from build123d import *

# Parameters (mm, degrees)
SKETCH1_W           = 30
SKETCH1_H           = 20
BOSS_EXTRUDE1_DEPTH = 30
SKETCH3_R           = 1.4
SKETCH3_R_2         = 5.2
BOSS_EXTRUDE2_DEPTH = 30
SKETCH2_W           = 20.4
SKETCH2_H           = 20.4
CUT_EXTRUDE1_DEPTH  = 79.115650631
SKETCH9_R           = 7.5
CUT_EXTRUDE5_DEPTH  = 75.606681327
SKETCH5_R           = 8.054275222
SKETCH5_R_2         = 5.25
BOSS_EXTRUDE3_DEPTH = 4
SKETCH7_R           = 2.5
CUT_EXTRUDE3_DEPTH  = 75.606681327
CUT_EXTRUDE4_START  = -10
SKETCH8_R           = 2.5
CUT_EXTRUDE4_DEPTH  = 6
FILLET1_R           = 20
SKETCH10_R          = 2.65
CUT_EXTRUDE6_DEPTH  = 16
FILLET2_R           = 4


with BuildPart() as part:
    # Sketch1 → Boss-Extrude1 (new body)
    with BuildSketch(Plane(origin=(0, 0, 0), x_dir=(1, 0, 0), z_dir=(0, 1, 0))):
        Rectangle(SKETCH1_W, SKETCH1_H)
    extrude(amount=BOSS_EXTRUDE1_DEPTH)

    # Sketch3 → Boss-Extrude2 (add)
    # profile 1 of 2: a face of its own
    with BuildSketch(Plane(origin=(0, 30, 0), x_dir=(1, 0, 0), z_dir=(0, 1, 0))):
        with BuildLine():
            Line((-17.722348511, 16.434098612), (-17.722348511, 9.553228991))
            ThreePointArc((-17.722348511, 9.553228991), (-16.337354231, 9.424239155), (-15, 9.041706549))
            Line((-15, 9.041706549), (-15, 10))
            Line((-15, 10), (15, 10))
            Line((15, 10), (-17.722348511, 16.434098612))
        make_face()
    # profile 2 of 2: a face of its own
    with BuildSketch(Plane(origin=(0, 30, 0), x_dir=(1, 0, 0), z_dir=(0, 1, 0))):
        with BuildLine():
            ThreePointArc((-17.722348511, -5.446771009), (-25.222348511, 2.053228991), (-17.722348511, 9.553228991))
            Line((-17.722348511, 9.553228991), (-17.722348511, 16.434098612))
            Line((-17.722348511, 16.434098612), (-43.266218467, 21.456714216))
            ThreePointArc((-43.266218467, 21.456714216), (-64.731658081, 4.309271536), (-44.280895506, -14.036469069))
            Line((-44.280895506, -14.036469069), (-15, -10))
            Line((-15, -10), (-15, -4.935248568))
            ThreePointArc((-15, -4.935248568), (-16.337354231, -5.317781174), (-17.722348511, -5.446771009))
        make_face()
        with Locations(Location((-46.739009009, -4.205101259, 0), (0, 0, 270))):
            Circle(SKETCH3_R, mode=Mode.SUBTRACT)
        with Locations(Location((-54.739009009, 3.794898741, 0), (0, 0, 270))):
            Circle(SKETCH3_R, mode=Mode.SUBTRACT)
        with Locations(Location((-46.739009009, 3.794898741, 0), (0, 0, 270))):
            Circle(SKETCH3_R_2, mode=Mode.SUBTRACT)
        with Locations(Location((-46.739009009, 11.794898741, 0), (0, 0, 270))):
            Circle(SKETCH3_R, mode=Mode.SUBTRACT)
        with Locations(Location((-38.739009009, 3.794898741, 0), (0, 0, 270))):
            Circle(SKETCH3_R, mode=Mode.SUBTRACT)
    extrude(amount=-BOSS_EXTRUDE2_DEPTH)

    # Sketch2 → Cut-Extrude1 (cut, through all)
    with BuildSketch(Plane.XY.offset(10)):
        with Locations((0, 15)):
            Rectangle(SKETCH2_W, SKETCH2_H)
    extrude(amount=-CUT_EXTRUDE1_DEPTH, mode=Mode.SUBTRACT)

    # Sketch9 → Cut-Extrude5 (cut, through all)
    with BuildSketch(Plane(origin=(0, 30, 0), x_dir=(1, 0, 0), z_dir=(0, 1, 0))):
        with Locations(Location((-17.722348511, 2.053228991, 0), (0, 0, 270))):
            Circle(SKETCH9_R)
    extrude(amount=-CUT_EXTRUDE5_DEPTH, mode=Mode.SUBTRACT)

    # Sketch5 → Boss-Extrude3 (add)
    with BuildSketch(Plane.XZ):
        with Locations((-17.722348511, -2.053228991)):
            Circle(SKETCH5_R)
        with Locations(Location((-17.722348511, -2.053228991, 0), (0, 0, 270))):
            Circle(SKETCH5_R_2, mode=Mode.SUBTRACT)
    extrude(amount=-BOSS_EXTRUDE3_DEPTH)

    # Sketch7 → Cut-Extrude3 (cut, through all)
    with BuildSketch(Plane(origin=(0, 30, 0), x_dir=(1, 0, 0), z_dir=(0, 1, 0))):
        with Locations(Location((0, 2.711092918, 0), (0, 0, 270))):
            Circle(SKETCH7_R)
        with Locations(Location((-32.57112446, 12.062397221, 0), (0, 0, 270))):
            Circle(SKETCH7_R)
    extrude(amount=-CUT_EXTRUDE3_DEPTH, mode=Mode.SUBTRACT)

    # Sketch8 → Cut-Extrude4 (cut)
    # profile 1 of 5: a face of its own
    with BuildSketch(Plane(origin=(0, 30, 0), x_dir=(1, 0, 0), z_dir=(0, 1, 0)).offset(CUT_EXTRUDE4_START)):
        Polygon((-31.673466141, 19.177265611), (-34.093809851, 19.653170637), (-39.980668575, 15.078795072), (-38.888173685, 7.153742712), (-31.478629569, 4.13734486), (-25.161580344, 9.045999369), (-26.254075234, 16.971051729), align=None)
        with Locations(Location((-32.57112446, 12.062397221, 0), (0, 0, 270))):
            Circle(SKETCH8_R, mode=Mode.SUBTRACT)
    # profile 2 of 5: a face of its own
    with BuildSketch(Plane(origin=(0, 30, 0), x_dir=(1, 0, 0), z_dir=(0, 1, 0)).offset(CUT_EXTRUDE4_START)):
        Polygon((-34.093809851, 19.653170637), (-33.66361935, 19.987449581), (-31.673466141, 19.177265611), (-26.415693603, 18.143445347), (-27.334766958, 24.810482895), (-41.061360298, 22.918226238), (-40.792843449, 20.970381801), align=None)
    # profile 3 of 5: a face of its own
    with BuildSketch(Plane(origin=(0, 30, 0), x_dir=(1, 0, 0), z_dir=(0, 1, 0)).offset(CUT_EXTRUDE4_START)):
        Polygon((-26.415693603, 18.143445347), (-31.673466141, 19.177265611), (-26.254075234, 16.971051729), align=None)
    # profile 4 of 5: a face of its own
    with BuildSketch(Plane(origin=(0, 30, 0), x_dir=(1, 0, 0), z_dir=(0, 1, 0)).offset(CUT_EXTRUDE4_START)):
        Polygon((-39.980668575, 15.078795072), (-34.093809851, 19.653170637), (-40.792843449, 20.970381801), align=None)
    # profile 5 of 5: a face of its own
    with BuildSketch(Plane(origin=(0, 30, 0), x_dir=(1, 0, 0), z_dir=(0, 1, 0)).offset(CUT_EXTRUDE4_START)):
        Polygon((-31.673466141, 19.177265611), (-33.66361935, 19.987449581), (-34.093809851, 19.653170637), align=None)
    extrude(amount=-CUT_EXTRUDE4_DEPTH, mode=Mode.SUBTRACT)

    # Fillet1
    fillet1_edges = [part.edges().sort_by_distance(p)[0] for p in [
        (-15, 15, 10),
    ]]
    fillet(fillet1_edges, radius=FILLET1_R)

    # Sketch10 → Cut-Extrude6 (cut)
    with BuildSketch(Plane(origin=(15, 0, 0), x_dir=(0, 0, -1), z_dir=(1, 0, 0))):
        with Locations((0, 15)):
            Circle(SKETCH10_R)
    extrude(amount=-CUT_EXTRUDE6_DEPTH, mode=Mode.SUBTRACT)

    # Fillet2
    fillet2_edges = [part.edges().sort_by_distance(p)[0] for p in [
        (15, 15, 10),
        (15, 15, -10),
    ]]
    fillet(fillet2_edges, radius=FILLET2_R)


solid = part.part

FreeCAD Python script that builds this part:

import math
import FreeCAD as App
import Part
import Sketcher
Q = App.Units.Quantity


def edges_at(feature, points):
    """Names of the edges that pass closest to the given points."""
    edges = feature.Shape.Edges
    near = lambda p: min(range(len(edges)), key=lambda i: edges[i].distToShape(Part.Vertex(*p))[0])
    return sorted({f"Edge{near(p) + 1}" for p in points})


def add_polygon(sketch, points):
    """Adds a closed chain of lines whose ends are joined by coincident constraints."""
    first, n = sketch.GeometryCount, len(points)
    for a, b in zip(points, points[1:] + points[:1]):
        sketch.addGeometry(Part.LineSegment(App.Vector(*a, 0), App.Vector(*b, 0)), False)
    for i in range(n):
        sketch.addConstraint(Sketcher.Constraint("Coincident", first + i, 2, first + (i + 1) % n, 1))

doc = App.newDocument("Part")
params = doc.addObject("Spreadsheet::Sheet", "Params")
for row, (alias, value) in enumerate([
    ("sketch1_width", "30 mm"),
    ("sketch1_height", "20 mm"),
    ("pad1_length", "30 mm"),
    ("sketch2_radius", "18 mm"),
    ("sketch2_diameter", "2.8 mm"),
    ("sketch2_diameter2", "10.4 mm"),
    ("sketch2_radius2", "7.5 mm"),
    ("sketch2_width", "30 mm"),
    ("pad2_length", "30 mm"),
    ("sketch3_width", "20.4 mm"),
    ("sketch4_diameter", "15 mm"),
    ("sketch5_diameter", "10.5 mm"),
    ("pad3_length", "4 mm"),
    ("sketch6_diameter", "5 mm"),
    ("sketch7_diameter", "5 mm"),
    ("sketch7_length", "8 mm"),
    ("pocket4_length", "6 mm"),
    ("fillet_radius", "20 mm"),
    ("sketch8_diameter", "5.3 mm"),
    ("pocket5_length", "16 mm"),
    ("fillet2_radius", "4 mm"),
], start=1):
    params.set(f"A{row}", alias)
    params.set(f"B{row}", "=" + value)
    params.setAlias(f"B{row}", alias)

body = doc.addObject("PartDesign::Body", "Body")

# Sketch on XZ plane
sketch1 = body.newObject("Sketcher::SketchObject", "Sketch")
sketch1.AttachmentSupport = (doc.getObject("XZ_Plane"), [""])
sketch1.MapMode = "FlatFace"
add_polygon(sketch1, [(-15, -10), (-15, 10), (15, 10), (15, -10)])  # lines 0-3
sketch1.addConstraint(Sketcher.Constraint("Vertical", 0))
sketch1.addConstraint(Sketcher.Constraint("Horizontal", 1))
sketch1.addConstraint(Sketcher.Constraint("Vertical", 2))
sketch1.addConstraint(Sketcher.Constraint("Horizontal", 3))
sketch1.addConstraint(Sketcher.Constraint("Symmetric", 0, 2, 2, 2, -1, 1))
sketch1.addConstraint(Sketcher.Constraint("DistanceX", 1, 1, 1, 2, Q("30 mm")))
sketch1.addConstraint(Sketcher.Constraint("DistanceY", 0, 1, 0, 2, Q("20 mm")))
sketch1.setExpression("Constraints[9]", "Params.sketch1_width")
sketch1.setExpression("Constraints[10]", "Params.sketch1_height")
pad1 = body.newObject("PartDesign::Pad", "Pad")
pad1.Profile = sketch1
pad1.setExpression("Length", "Params.pad1_length")
pad1.Reversed = True

# Sketch on XZ plane
sketch2 = body.newObject("Sketcher::SketchObject", "Sketch001")
sketch2.AttachmentSupport = (doc.getObject("XZ_Plane"), [""])
sketch2.MapMode = "FlatFace"
sketch2.AttachmentOffset = App.Placement(App.Vector(0, 0, -30), App.Rotation())
sketch2.addGeometry(Part.ArcOfCircle(Part.Circle(App.Vector(-17.722349, -2.053229, 0), App.Vector(0, 0, 1), 7.5), math.radians(-90), math.radians(-68.716691)), False)
sketch2.addGeometry(Part.LineSegment(App.Vector(-15, -9.041707, 0), App.Vector(-15, -10, 0)), False)
sketch2.addGeometry(Part.LineSegment(App.Vector(-15, -10, 0), App.Vector(15, -10, 0)), False)
sketch2.addGeometry(Part.LineSegment(App.Vector(15, -10, 0), App.Vector(-17.722349, -16.434099, 0)), False)
sketch2.addGeometry(Part.LineSegment(App.Vector(-17.722349, -16.434099, 0), App.Vector(-43.266218, -21.456714, 0)), False)
sketch2.addGeometry(Part.ArcOfCircle(Part.Circle(App.Vector(-46.739009, -3.794899, 0), App.Vector(0, 0, 1), 18), math.radians(82.151056), math.radians(281.123989)), False)
sketch2.addGeometry(Part.LineSegment(App.Vector(-44.280896, 14.036469, 0), App.Vector(-15, 10, 0)), False)
sketch2.addGeometry(Part.LineSegment(App.Vector(-15, 10, 0), App.Vector(-15, 4.935249, 0)), False)
sketch2.addGeometry(Part.ArcOfCircle(Part.Circle(App.Vector(-17.722349, -2.053229, 0), App.Vector(0, 0, 1), 7.5), math.radians(68.716691), math.radians(90)), False)
sketch2.addGeometry(Part.ArcOfCircle(Part.Circle(App.Vector(-17.722349, -2.053229, 0), App.Vector(0, 0, 1), 7.5), math.radians(90), math.radians(270)), False)
sketch2.addGeometry(Part.Circle(App.Vector(-46.739009, -11.794899, 0), App.Vector(0, 0, 1), 1.4), False)
sketch2.addGeometry(Part.Circle(App.Vector(-54.739009, -3.794899, 0), App.Vector(0, 0, 1), 1.4), False)
sketch2.addGeometry(Part.Circle(App.Vector(-46.739009, 4.205101, 0), App.Vector(0, 0, 1), 1.4), False)
sketch2.addGeometry(Part.Circle(App.Vector(-46.739009, -3.794899, 0), App.Vector(0, 0, 1), 5.2), False)
sketch2.addGeometry(Part.Circle(App.Vector(-38.739009, -3.794899, 0), App.Vector(0, 0, 1), 1.4), False)
sketch2.addConstraint(Sketcher.Constraint("Coincident", 0, 2, 1, 1))
sketch2.addConstraint(Sketcher.Constraint("Coincident", 1, 2, 2, 1))
sketch2.addConstraint(Sketcher.Constraint("Coincident", 2, 2, 3, 1))
sketch2.addConstraint(Sketcher.Constraint("Coincident", 3, 2, 4, 1))
sketch2.addConstraint(Sketcher.Constraint("Tangent", 4, 2, 5, 2))
sketch2.addConstraint(Sketcher.Constraint("Tangent", 5, 1, 6, 1))
sketch2.addConstraint(Sketcher.Constraint("Coincident", 6, 2, 7, 1))
sketch2.addConstraint(Sketcher.Constraint("Coincident", 7, 2, 8, 1))
sketch2.addConstraint(Sketcher.Constraint("Tangent", 8, 2, 9, 1))
sketch2.addConstraint(Sketcher.Constraint("Tangent", 9, 2, 0, 1))
sketch2.addConstraint(Sketcher.Constraint("Vertical", 1))
sketch2.addConstraint(Sketcher.Constraint("Horizontal", 2))
sketch2.addConstraint(Sketcher.Constraint("Vertical", 7))
sketch2.addConstraint(Sketcher.Constraint("Coincident", 13, 3, 5, 3))
sketch2.addConstraint(Sketcher.Constraint("Equal", 0, 8))
sketch2.addConstraint(Sketcher.Constraint("Equal", 8, 9))
sketch2.addConstraint(Sketcher.Constraint("Equal", 10, 11))
sketch2.addConstraint(Sketcher.Constraint("Equal", 11, 12))
sketch2.addConstraint(Sketcher.Constraint("Equal", 12, 14))
sketch2.addConstraint(Sketcher.Constraint("Symmetric", 2, 2, 6, 2, -1, 1))
sketch2.addConstraint(Sketcher.Constraint("Parallel", 3, 4))
sketch2.addConstraint(Sketcher.Constraint("Horizontal", 5, 3, 11, 3))
sketch2.addConstraint(Sketcher.Constraint("Horizontal", 13, 3, 14, 3))
sketch2.addConstraint(Sketcher.Constraint("Vertical", 5, 3, 10, 3))
sketch2.addConstraint(Sketcher.Constraint("Vertical", 10, 3, 12, 3))
sketch2.addConstraint(Sketcher.Constraint("Vertical", 9, 3, 3, 2))
sketch2.addConstraint(Sketcher.Constraint("Vertical", 1, 2, 6, 2))
sketch2.addConstraint(Sketcher.Constraint("Vertical", 3, 2, 8, 2))
sketch2.addConstraint(Sketcher.Constraint("Vertical", 8, 2, 9, 2))
sketch2.addConstraint(Sketcher.Constraint("Radius", 5, Q("18 mm")))
sketch2.addConstraint(Sketcher.Constraint("Diameter", 10, Q("2.8 mm")))
sketch2.addConstraint(Sketcher.Constraint("Diameter", 13, Q("10.4 mm")))
sketch2.addConstraint(Sketcher.Constraint("Radius", 0, Q("7.5 mm")))
sketch2.addConstraint(Sketcher.Constraint("DistanceX", 2, 1, 2, 2, Q("30 mm")))
sketch2.addConstraint(Sketcher.Constraint("DistanceY", 1, 2, -1, 1, Q("10 mm")))
sketch2.addConstraint(Sketcher.Constraint("DistanceY", 10, 3, 5, 3, Q("8 mm")))
sketch2.addConstraint(Sketcher.Constraint("DistanceX", 11, 3, 5, 3, Q("8 mm")))
sketch2.addConstraint(Sketcher.Constraint("DistanceY", 5, 3, 12, 3, Q("8 mm")))
sketch2.addConstraint(Sketcher.Constraint("DistanceX", 5, 3, 14, 3, Q("8 mm")))
sketch2.addConstraint(Sketcher.Constraint("DistanceY", 7, 2, 7, 1, Q("5.064751 mm")))
sketch2.addConstraint(Sketcher.Constraint("DistanceY", 5, 3, -1, 1, Q("3.794899 mm")))
sketch2.addConstraint(Sketcher.Constraint("DistanceY", 3, 2, -1, 1, Q("16.434099 mm")))
sketch2.addConstraint(Sketcher.Constraint("Distance", 3, Q("33.348909 mm")))
sketch2.setExpression("Constraints[29]", "Params.sketch2_radius")
sketch2.setExpression("Constraints[30]", "Params.sketch2_diameter")
sketch2.setExpression("Constraints[31]", "Params.sketch2_diameter2")
sketch2.setExpression("Constraints[32]", "Params.sketch2_radius2")
sketch2.setExpression("Constraints[33]", "Params.sketch2_width")
pad2 = body.newObject("PartDesign::Pad", "Pad001")
pad2.Profile = sketch2
pad2.setExpression("Length", "Params.pad2_length")

# Sketch on XY plane
sketch3 = body.newObject("Sketcher::SketchObject", "Sketch002")
sketch3.AttachmentSupport = (doc.getObject("XY_Plane"), [""])
sketch3.MapMode = "FlatFace"
sketch3.AttachmentOffset = App.Placement(App.Vector(0, 0, 10), App.Rotation())
add_polygon(sketch3, [(-10.2, 25.2), (-10.2, 4.8), (10.2, 4.8), (10.2, 25.2)])  # lines 0-3
sketch3.addConstraint(Sketcher.Constraint("Vertical", 0))
sketch3.addConstraint(Sketcher.Constraint("Horizontal", 1))
sketch3.addConstraint(Sketcher.Constraint("Vertical", 2))
sketch3.addConstraint(Sketcher.Constraint("Horizontal", 3))
sketch3.addConstraint(Sketcher.Constraint("Equal", 3, 0))
sketch3.addConstraint(Sketcher.Constraint("DistanceX", 1, 1, 1, 2, Q("20.4 mm")))
sketch3.addConstraint(Sketcher.Constraint("DistanceX", 0, 2, -1, 1, Q("10.2 mm")))
sketch3.addConstraint(Sketcher.Constraint("DistanceY", -1, 1, 0, 2, Q("4.8 mm")))
sketch3.setExpression("Constraints[9]", "Params.sketch3_width")
pocket1 = body.newObject("PartDesign::Pocket", "Pocket")
pocket1.Profile = sketch3
pocket1.Type = "ThroughAll"

# Sketch on XZ plane
sketch4 = body.newObject("Sketcher::SketchObject", "Sketch003")
sketch4.AttachmentSupport = (doc.getObject("XZ_Plane"), [""])
sketch4.MapMode = "FlatFace"
sketch4.AttachmentOffset = App.Placement(App.Vector(0, 0, -30), App.Rotation())
sketch4.addGeometry(Part.Circle(App.Vector(-17.722349, -2.053229, 0), App.Vector(0, 0, 1), 7.5), False)
sketch4.addConstraint(Sketcher.Constraint("Diameter", 0, Q("15 mm")))
sketch4.addConstraint(Sketcher.Constraint("DistanceX", 0, 3, -1, 1, Q("17.722349 mm")))
sketch4.addConstraint(Sketcher.Constraint("DistanceY", 0, 3, -1, 1, Q("2.053229 mm")))
sketch4.setExpression("Constraints[0]", "Params.sketch4_diameter")
pocket2 = body.newObject("PartDesign::Pocket", "Pocket001")
pocket2.Profile = sketch4
pocket2.Type = "ThroughAll"
pocket2.Reversed = True

# Sketch on XZ plane
sketch5 = body.newObject("Sketcher::SketchObject", "Sketch004")
sketch5.AttachmentSupport = (doc.getObject("XZ_Plane"), [""])
sketch5.MapMode = "FlatFace"
sketch5.addGeometry(Part.Circle(App.Vector(-17.722349, -2.053229, 0), App.Vector(0, 0, 1), 8.054275), False)
sketch5.addGeometry(Part.Circle(App.Vector(-17.722349, -2.053229, 0), App.Vector(0, 0, 1), 5.25), False)
sketch5.addConstraint(Sketcher.Constraint("Coincident", 1, 3, 0, 3))
sketch5.addConstraint(Sketcher.Constraint("Diameter", 1, Q("10.5 mm")))
sketch5.addConstraint(Sketcher.Constraint("Diameter", 0, Q("16.10855 mm")))
sketch5.addConstraint(Sketcher.Constraint("DistanceX", 0, 3, -1, 1, Q("17.722349 mm")))
sketch5.addConstraint(Sketcher.Constraint("DistanceY", 0, 3, -1, 1, Q("2.053229 mm")))
sketch5.setExpression("Constraints[1]", "Params.sketch5_diameter")
pad3 = body.newObject("PartDesign::Pad", "Pad002")
pad3.Profile = sketch5
pad3.setExpression("Length", "Params.pad3_length")
pad3.Reversed = True

# Sketch on XZ plane
sketch6 = body.newObject("Sketcher::SketchObject", "Sketch005")
sketch6.AttachmentSupport = (doc.getObject("XZ_Plane"), [""])
sketch6.MapMode = "FlatFace"
sketch6.AttachmentOffset = App.Placement(App.Vector(0, 0, -30), App.Rotation())
sketch6.addGeometry(Part.Circle(App.Vector(0, -2.711093, 0), App.Vector(0, 0, 1), 2.5), False)
sketch6.addGeometry(Part.Circle(App.Vector(-32.571124, -12.062397, 0), App.Vector(0, 0, 1), 2.5), False)
sketch6.addConstraint(Sketcher.Constraint("Equal", 0, 1))
sketch6.addConstraint(Sketcher.Constraint("PointOnObject", 0, 3, -2))
sketch6.addConstraint(Sketcher.Constraint("Diameter", 0, Q("5 mm")))
sketch6.addConstraint(Sketcher.Constraint("DistanceY", 0, 3, -1, 1, Q("2.711093 mm")))
sketch6.addConstraint(Sketcher.Constraint("DistanceX", 1, 3, -1, 1, Q("32.571124 mm")))
sketch6.addConstraint(Sketcher.Constraint("DistanceY", 1, 3, -1, 1, Q("12.062397 mm")))
sketch6.setExpression("Constraints[2]", "Params.sketch6_diameter")
pocket3 = body.newObject("PartDesign::Pocket", "Pocket002")
pocket3.Profile = sketch6
pocket3.Type = "ThroughAll"
pocket3.Reversed = True

# Sketch on XZ plane
sketch7 = body.newObject("Sketcher::SketchObject", "Sketch006")
sketch7.AttachmentSupport = (doc.getObject("XZ_Plane"), [""])
sketch7.MapMode = "FlatFace"
sketch7.AttachmentOffset = App.Placement(App.Vector(0, 0, -20), App.Rotation())
add_polygon(sketch7, [(-25.16158, -9.045999), (-26.254075, -16.971052), (-26.415694, -18.143445), (-27.334767, -24.810483), (-41.06136, -22.918226), (-40.792843, -20.970382), (-39.980669, -15.078795), (-38.888174, -7.153743), (-31.47863, -4.137345)])  # lines 0-8
sketch7.addGeometry(Part.Circle(App.Vector(-32.571124, -12.062397, 0), App.Vector(0, 0, 1), 2.5), False)  # 9
sketch7.addConstraint(Sketcher.Constraint("Parallel", 0, 1))
sketch7.addConstraint(Sketcher.Constraint("Parallel", 1, 2))
sketch7.addConstraint(Sketcher.Constraint("Perpendicular", 2, 3))
sketch7.addConstraint(Sketcher.Constraint("Perpendicular", 3, 4))
sketch7.addConstraint(Sketcher.Constraint("Parallel", 4, 5))
sketch7.addConstraint(Sketcher.Constraint("Parallel", 5, 6))
sketch7.addConstraint(Sketcher.Constraint("Equal", 0, 6))
sketch7.addConstraint(Sketcher.Constraint("Equal", 6, 7))
sketch7.addConstraint(Sketcher.Constraint("Equal", 7, 8))
sketch7.addConstraint(Sketcher.Constraint("Diameter", 9, Q("5 mm")))
sketch7.addConstraint(Sketcher.Constraint("Distance", 0, Q("8 mm")))
sketch7.addConstraint(Sketcher.Constraint("DistanceY", 8, 2, -1, 1, Q("9.045999 mm")))
sketch7.addConstraint(Sketcher.Constraint("DistanceY", 2, 2, 4, 2, Q("3.840101 mm")))
sketch7.addConstraint(Sketcher.Constraint("DistanceX", 6, 2, 0, 2, Q("12.634098 mm")))
sketch7.addConstraint(Sketcher.Constraint("DistanceY", 1, 2, 7, 2, Q("14.0061 mm")))
sketch7.addConstraint(Sketcher.Constraint("Distance", 1, Q("1.183481 mm")))
sketch7.addConstraint(Sketcher.Constraint("Distance", 2, Q("6.730088 mm")))
sketch7.addConstraint(Sketcher.Constraint("DistanceY", 0, 2, -1, 1, Q("16.971052 mm")))
sketch7.addConstraint(Sketcher.Constraint("DistanceX", 3, 2, -1, 1, Q("41.06136 mm")))
sketch7.addConstraint(Sketcher.Constraint("DistanceX", 9, 3, 0, 2, Q("6.317049 mm")))
sketch7.addConstraint(Sketcher.Constraint("DistanceY", 1, 2, 9, 3, Q("6.081048 mm")))
sketch7.setExpression("Constraints[18]", "Params.sketch7_diameter")
sketch7.setExpression("Constraints[19]", "Params.sketch7_length")
pocket4 = body.newObject("PartDesign::Pocket", "Pocket003")
pocket4.Profile = sketch7
pocket4.setExpression("Length", "Params.pocket4_length")
pocket4.Reversed = True
doc.recompute()

fillet = body.newObject("PartDesign::Fillet", "Fillet")
fillet.Base = (pocket4, edges_at(pocket4, [(-15, 15, 10)]))
fillet.setExpression("Radius", "Params.fillet_radius")

# Sketch on YZ plane
sketch8 = body.newObject("Sketcher::SketchObject", "Sketch007")
sketch8.AttachmentSupport = (doc.getObject("YZ_Plane"), [""])
sketch8.MapMode = "FlatFace"
sketch8.AttachmentOffset = App.Placement(App.Vector(0, 0, 15), App.Rotation())
sketch8.addGeometry(Part.Circle(App.Vector(15, 0, 0), App.Vector(0, 0, 1), 2.65), False)
sketch8.addConstraint(Sketcher.Constraint("PointOnObject", 0, 3, -1))
sketch8.addConstraint(Sketcher.Constraint("Diameter", 0, Q("5.3 mm")))
sketch8.addConstraint(Sketcher.Constraint("DistanceX", -1, 1, 0, 3, Q("15 mm")))
sketch8.setExpression("Constraints[1]", "Params.sketch8_diameter")
pocket5 = body.newObject("PartDesign::Pocket", "Pocket004")
pocket5.Profile = sketch8
pocket5.setExpression("Length", "Params.pocket5_length")
doc.recompute()

fillet2 = body.newObject("PartDesign::Fillet", "Fillet001")
fillet2.Base = (pocket5, edges_at(pocket5, [(15, 15, 10), (15, 15, -10)]))
fillet2.setExpression("Radius", "Params.fillet2_radius")

doc.recompute()
